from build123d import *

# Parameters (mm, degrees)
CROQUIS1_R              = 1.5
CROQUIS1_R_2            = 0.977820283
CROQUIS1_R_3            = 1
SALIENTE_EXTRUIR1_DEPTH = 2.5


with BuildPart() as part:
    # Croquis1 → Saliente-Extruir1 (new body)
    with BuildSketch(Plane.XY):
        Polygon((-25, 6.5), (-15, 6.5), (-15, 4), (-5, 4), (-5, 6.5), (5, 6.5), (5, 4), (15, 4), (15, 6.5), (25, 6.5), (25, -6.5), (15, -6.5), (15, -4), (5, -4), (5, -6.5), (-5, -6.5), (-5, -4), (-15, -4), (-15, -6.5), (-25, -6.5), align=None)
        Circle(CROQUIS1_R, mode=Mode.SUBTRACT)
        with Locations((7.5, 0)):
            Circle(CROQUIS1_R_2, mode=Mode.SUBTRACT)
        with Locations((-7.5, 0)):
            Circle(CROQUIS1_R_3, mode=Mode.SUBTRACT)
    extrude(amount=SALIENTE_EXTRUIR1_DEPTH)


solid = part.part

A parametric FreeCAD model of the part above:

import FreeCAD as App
import Part
import Sketcher

V = App.Vector
Q = App.Units.Quantity


def add_polygon(sketch, points):
    """Adds a closed chain of lines whose ends are joined by coincident constraints."""
    first, n = sketch.GeometryCount, len(points)
    for a, b in zip(points, points[1:] + points[:1]):
        sketch.addGeometry(Part.LineSegment(App.Vector(*a, 0), App.Vector(*b, 0)), False)
    for i in range(n):
        sketch.addConstraint(Sketcher.Constraint("Coincident", first + i, 2, first + (i + 1) % n, 1))

doc = App.newDocument("Part")
body = doc.addObject("PartDesign::Body", "Body")

sketch1 = body.newObject("Sketcher::SketchObject", "Sketch")
sketch1.AttachmentSupport = (doc.getObject("XY_Plane"), [""])
sketch1.MapMode = "FlatFace"
add_polygon(sketch1, [(-15, 6.5), (-25, 6.5), (-25, -6.5), (-15, -6.5), (-15, -4), (-5, -4), (-5, -6.5), (5, -6.5), (5, -4), (15, -4), (15, -6.5), (25, -6.5), (25, 6.5), (15, 6.5), (15, 4), (5, 4), (5, 6.5), (-5, 6.5), (-5, 4), (-15, 4)])
sketch1.addGeometry(Part.Circle(V(7.5, 0, 0), V(0, 0, 1), 1), False)
sketch1.addGeometry(Part.Circle(V(0, 0, 0), V(0, 0, 1), 1.5), False)
sketch1.addGeometry(Part.Circle(V(-7.5, 0, 0), V(0, 0, 1), 1), False)
sketch1.addConstraint([
    Sketcher.Constraint("Horizontal", 0),
    Sketcher.Constraint("Vertical", 1),
    Sketcher.Constraint("Horizontal", 2),
    Sketcher.Constraint("Vertical", 3),
    Sketcher.Constraint("Horizontal", 4),
    Sketcher.Constraint("Vertical", 5),
    Sketcher.Constraint("Horizontal", 6),
    Sketcher.Constraint("Vertical", 7),
    Sketcher.Constraint("Horizontal", 8),
    Sketcher.Constraint("Vertical", 9),
    Sketcher.Constraint("Horizontal", 10),
    Sketcher.Constraint("Vertical", 11),
    Sketcher.Constraint("Horizontal", 12),
    Sketcher.Constraint("Vertical", 13),
    Sketcher.Constraint("Horizontal", 14),
    Sketcher.Constraint("Vertical", 15),
    Sketcher.Constraint("Horizontal", 16),
    Sketcher.Constraint("Vertical", 17),
    Sketcher.Constraint("Horizontal", 18),
    Sketcher.Constraint("Vertical", 19),
    Sketcher.Constraint("Coincident", 21, 3, -1, 1),
    Sketcher.Constraint("Symmetric", 20, 3, 22, 3, -1, 1),
    Sketcher.Constraint("Symmetric", 0, 2, 10, 2, -1, 1),
    Sketcher.Constraint("Symmetric", 2, 2, 12, 2, -1, 1),
    Sketcher.Constraint("Symmetric", 4, 2, 14, 2, -1, 1),
    Sketcher.Constraint("Symmetric", 6, 2, 16, 2, -1, 1),
    Sketcher.Constraint("Symmetric", 8, 2, 18, 2, -1, 1),
    Sketcher.Constraint("Symmetric", 4, 2, 7, 2, -2),
    Sketcher.Constraint("Symmetric", 2, 2, 9, 2, -2),
    Sketcher.Constraint("PointOnObject", 20, 3, -1),
    Sketcher.Constraint("Horizontal", 2, 2, 5, 2),
    Sketcher.Constraint("Equal", 2, 4),
    Sketcher.Constraint("Equal", 4, 6),
    Sketcher.Constraint("Diameter", 21, Q("3 mm")),
    Sketcher.Constraint("Diameter", 22, Q("2 mm")),
    Sketcher.Constraint("DistanceX", 0, 2, 0, 1, Q("10 mm")),
    Sketcher.Constraint("DistanceY", 1, 2, 1, 1, Q("13 mm")),
    Sketcher.Constraint("DistanceY", 3, 1, 3, 2, Q("2.5 mm")),
    Sketcher.Constraint("DistanceX", 22, 3, 20, 3, Q("15 mm")),
    Sketcher.Constraint("Diameter", 20, Q("1.955641 mm")),
])
pad1 = body.newObject("PartDesign::Pad", "Pad")
pad1.Profile = sketch1
pad1.Length = 2.5

doc.recompute()
